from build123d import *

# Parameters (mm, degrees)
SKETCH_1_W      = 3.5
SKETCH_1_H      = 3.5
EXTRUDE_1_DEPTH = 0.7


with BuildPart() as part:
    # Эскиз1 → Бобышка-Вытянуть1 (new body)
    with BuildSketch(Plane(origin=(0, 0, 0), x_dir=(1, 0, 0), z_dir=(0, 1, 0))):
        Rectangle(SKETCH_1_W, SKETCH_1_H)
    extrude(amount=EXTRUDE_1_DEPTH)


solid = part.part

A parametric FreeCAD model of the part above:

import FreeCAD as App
import Part
import Sketcher
Q = App.Units.Quantity

doc = App.newDocument("Part")
body = doc.addObject("PartDesign::Body", "Body")

# Sketch on XZ plane
sketch1 = body.newObject("Sketcher::SketchObject", "Sketch")
sketch1.AttachmentSupport = (doc.getObject("XZ_Plane"), [""])
sketch1.MapMode = "FlatFace"
sketch1.addGeometry(Part.LineSegment(App.Vector(-1.75, -1.75, 0), App.Vector(-1.75, 1.75, 0)), False)
sketch1.addGeometry(Part.LineSegment(App.Vector(-1.75, 1.75, 0), App.Vector(1.75, 1.75, 0)), False)
sketch1.addGeometry(Part.LineSegment(App.Vector(1.75, 1.75, 0), App.Vector(1.75, -1.75, 0)), False)
sketch1.addGeometry(Part.LineSegment(App.Vector(1.75, -1.75, 0), App.Vector(-1.75, -1.75, 0)), False)
sketch1.addConstraint(Sketcher.Constraint("Coincident", 0, 2, 1, 1))
sketch1.addConstraint(Sketcher.Constraint("Coincident", 1, 2, 2, 1))
sketch1.addConstraint(Sketcher.Constraint("Coincident", 2, 2, 3, 1))
sketch1.addConstraint(Sketcher.Constraint("Coincident", 3, 2, 0, 1))
sketch1.addConstraint(Sketcher.Constraint("Vertical", 0))
sketch1.addConstraint(Sketcher.Constraint("Horizontal", 1))
sketch1.addConstraint(Sketcher.Constraint("Vertical", 2))
sketch1.addConstraint(Sketcher.Constraint("Horizontal", 3))
sketch1.addConstraint(Sketcher.Constraint("Symmetric", 0, 2, 2, 2, -1, 1))
sketch1.addConstraint(Sketcher.Constraint("Equal", 3, 0))
sketch1.addConstraint(Sketcher.Constraint("DistanceX", 1, 1, 1, 2, Q("3.5 mm")))
pad1 = body.newObject("PartDesign::Pad", "Pad")
pad1.Profile = sketch1
pad1.Length = 0.7
pad1.Reversed = True

doc.recompute()
